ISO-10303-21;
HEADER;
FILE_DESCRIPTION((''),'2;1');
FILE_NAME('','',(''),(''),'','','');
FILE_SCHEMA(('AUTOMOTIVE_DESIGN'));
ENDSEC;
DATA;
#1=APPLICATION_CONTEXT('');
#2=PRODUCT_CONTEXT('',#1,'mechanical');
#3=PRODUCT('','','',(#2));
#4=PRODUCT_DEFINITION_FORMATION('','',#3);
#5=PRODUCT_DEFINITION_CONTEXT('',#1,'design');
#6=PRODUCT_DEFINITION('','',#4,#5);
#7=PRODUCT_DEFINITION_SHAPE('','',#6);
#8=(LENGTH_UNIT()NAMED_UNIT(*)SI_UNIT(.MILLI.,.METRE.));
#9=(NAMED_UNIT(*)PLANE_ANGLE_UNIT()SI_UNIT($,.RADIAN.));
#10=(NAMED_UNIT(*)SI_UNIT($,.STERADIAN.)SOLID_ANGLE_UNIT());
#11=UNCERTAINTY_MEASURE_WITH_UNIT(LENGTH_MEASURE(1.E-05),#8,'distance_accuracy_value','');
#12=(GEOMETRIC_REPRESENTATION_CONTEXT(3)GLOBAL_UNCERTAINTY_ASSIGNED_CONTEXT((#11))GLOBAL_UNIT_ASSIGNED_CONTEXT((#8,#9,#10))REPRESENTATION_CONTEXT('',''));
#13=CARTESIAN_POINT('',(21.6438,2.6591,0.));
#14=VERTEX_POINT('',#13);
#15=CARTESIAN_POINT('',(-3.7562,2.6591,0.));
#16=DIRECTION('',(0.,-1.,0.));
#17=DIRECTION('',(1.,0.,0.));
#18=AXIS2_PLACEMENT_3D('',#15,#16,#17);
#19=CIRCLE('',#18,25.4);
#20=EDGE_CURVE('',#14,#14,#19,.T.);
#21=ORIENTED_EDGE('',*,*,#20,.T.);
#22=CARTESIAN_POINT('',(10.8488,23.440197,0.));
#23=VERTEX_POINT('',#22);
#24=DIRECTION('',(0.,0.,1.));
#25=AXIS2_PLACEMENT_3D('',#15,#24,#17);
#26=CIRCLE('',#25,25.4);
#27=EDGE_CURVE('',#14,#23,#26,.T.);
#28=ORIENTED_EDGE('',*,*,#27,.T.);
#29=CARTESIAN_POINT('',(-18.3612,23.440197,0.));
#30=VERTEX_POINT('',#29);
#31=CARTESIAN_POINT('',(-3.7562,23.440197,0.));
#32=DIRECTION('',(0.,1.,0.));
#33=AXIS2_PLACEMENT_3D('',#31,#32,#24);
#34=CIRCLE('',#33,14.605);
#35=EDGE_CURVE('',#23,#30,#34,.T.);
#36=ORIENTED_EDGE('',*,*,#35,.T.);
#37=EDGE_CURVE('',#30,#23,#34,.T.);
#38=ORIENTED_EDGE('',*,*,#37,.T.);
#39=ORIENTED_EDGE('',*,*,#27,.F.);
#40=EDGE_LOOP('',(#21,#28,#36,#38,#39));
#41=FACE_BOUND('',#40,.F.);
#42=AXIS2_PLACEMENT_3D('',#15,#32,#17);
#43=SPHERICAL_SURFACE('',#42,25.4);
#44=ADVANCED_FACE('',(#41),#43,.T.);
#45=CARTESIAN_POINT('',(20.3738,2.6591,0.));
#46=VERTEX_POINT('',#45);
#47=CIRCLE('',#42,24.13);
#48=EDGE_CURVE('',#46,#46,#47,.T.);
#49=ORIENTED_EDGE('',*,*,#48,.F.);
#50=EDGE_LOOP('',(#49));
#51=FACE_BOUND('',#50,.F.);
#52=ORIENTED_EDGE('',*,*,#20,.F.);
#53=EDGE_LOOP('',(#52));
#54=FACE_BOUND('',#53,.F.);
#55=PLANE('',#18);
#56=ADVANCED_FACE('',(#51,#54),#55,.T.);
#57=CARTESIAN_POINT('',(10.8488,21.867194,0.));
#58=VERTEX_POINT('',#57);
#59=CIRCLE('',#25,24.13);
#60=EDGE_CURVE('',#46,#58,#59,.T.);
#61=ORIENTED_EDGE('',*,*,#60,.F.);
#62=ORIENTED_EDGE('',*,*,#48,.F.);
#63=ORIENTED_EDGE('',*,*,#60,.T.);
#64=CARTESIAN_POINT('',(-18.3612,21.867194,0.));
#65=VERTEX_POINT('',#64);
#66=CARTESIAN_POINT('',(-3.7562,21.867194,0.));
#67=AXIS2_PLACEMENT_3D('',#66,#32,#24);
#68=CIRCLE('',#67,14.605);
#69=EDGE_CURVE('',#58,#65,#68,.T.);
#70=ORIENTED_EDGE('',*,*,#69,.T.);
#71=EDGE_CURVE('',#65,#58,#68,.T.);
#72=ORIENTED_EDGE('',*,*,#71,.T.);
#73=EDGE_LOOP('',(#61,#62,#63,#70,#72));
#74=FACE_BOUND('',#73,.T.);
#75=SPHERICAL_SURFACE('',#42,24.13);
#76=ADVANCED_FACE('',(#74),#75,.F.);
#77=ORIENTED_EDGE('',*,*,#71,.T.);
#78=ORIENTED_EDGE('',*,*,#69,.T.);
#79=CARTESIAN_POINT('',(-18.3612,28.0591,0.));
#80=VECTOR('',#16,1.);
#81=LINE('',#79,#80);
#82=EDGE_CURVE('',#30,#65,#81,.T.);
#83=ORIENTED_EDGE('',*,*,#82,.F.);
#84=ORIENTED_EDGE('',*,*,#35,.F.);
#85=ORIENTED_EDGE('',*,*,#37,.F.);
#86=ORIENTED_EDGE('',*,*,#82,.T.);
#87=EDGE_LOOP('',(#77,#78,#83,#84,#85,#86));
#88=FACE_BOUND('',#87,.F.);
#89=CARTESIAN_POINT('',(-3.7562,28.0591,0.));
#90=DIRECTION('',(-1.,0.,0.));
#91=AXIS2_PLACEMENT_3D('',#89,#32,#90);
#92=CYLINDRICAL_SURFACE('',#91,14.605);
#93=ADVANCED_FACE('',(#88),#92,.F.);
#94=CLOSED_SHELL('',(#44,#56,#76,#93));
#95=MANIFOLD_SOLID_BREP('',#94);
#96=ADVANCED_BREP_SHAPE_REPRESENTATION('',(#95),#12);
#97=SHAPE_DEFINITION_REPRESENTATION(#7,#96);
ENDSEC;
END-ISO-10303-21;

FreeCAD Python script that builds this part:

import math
import FreeCAD as App
import Part
import Sketcher

V = App.Vector
Q = App.Units.Quantity


def faces_at(feature, points):
    """Names of the faces that lie closest to the given points."""
    faces = feature.Shape.Faces
    near = lambda p: min(range(len(faces)), key=lambda i: faces[i].distToShape(Part.Vertex(*p))[0])
    return sorted({f"Face{near(p) + 1}" for p in points})

doc = App.newDocument("Part")
params = doc.addObject("Spreadsheet::Sheet", "Params")
for row, (alias, value) in enumerate([
    ("sketch1_radius", "1 in"),
    ("revolution_angle", "360 deg"),
    ("thickness_wall", "0.05 in"),
    ("sketch2_diameter", "1.15 in"),
    ("pocket1_length", "1 in"),
], start=1):
    params.set(f"A{row}", alias)
    params.set(f"B{row}", "=" + value)
    params.setAlias(f"B{row}", alias)

body = doc.addObject("PartDesign::Body", "Body")

sketch1 = doc.addObject("Sketcher::SketchObject", "Sketch")
body.addObject(sketch1)
sketch1.AttachmentSupport = (doc.XY_Plane, [""])
sketch1.MapMode = "FlatFace"
sketch1.addGeometry(Part.LineSegment(V(-4, 3, 0), V(22, 3, 0)), False)
sketch1.addGeometry(Part.ArcOfCircle(Part.Circle(V(-4, 3, 0), V(0, 0, 1), 25), math.radians(0), math.radians(90)), False)
sketch1.addGeometry(Part.LineSegment(V(-4, 28, 0), V(-4, 3, 0)), False)
sketch1.addGeometry(Part.LineSegment(V(-4, 28, 0), V(-4, 3, 0)), True)
sketch1.addConstraint(Sketcher.Constraint("Coincident", 0, 2, 1, 1))
sketch1.addConstraint(Sketcher.Constraint("Coincident", 1, 2, 2, 1))
sketch1.addConstraint(Sketcher.Constraint("Coincident", 2, 2, 0, 1))
sketch1.addConstraint(Sketcher.Constraint("Horizontal", 0))
sketch1.addConstraint(Sketcher.Constraint("Vertical", 2))
sketch1.addConstraint(Sketcher.Constraint("Vertical", 3))
sketch1.addConstraint(Sketcher.Constraint("Coincident", 2, 2, 1, 3))
sketch1.addConstraint(Sketcher.Constraint("Coincident", 3, 1, 1, 2))
sketch1.addConstraint(Sketcher.Constraint("Horizontal", 0, 2, 3, 2))
sketch1.addConstraint(Sketcher.Constraint("Radius", 1, Q("1 in")))
sketch1.addConstraint(Sketcher.Constraint("DistanceY", -1, 1, 1, 3, Q("0.1047 in")))
sketch1.addConstraint(Sketcher.Constraint("DistanceX", 1, 3, -1, 1, Q("3.7562 mm")))
sketch1.setExpression("Constraints[9]", "Params.sketch1_radius")
revolution = doc.addObject("PartDesign::Revolution", "Revolution")
body.addObject(revolution)
revolution.Profile = sketch1
revolution.ReferenceAxis = (sketch1, ["Axis0"])
revolution.setExpression("Angle", "Params.revolution_angle")
doc.recompute()

thickness = doc.addObject("PartDesign::Thickness", "Thickness")
body.addObject(thickness)
thickness.Base = (revolution, faces_at(revolution, [(1.3, 2.659, -4.942)]))
thickness.setExpression("Value", "Params.thickness_wall")
thickness.Reversed = True
thickness.Join = "Intersection"

sketch2 = doc.addObject("Sketcher::SketchObject", "Sketch001")
body.addObject(sketch2)
sketch2.AttachmentSupport = (doc.XZ_Plane, [""])
sketch2.MapMode = "FlatFace"
sketch2.AttachmentOffset = App.Placement(V(0, 0, -1.104689 * 25.4), App.Rotation())
sketch2.addGeometry(Part.Circle(V(-4, 0, 0), V(0, 0, 1), 15), False)
sketch2.addConstraint(Sketcher.Constraint("PointOnObject", 0, 3, -1))
sketch2.addConstraint(Sketcher.Constraint("Diameter", 0, Q("1.15 in")))
sketch2.addConstraint(Sketcher.Constraint("DistanceX", 0, 3, -1, 1, Q("3.7562 mm")))
sketch2.setExpression("Constraints[1]", "Params.sketch2_diameter")
pocket1 = doc.addObject("PartDesign::Pocket", "Pocket")
body.addObject(pocket1)
pocket1.Profile = sketch2
pocket1.setExpression("Length", "Params.pocket1_length")
pocket1.Reversed = True

doc.recompute()
